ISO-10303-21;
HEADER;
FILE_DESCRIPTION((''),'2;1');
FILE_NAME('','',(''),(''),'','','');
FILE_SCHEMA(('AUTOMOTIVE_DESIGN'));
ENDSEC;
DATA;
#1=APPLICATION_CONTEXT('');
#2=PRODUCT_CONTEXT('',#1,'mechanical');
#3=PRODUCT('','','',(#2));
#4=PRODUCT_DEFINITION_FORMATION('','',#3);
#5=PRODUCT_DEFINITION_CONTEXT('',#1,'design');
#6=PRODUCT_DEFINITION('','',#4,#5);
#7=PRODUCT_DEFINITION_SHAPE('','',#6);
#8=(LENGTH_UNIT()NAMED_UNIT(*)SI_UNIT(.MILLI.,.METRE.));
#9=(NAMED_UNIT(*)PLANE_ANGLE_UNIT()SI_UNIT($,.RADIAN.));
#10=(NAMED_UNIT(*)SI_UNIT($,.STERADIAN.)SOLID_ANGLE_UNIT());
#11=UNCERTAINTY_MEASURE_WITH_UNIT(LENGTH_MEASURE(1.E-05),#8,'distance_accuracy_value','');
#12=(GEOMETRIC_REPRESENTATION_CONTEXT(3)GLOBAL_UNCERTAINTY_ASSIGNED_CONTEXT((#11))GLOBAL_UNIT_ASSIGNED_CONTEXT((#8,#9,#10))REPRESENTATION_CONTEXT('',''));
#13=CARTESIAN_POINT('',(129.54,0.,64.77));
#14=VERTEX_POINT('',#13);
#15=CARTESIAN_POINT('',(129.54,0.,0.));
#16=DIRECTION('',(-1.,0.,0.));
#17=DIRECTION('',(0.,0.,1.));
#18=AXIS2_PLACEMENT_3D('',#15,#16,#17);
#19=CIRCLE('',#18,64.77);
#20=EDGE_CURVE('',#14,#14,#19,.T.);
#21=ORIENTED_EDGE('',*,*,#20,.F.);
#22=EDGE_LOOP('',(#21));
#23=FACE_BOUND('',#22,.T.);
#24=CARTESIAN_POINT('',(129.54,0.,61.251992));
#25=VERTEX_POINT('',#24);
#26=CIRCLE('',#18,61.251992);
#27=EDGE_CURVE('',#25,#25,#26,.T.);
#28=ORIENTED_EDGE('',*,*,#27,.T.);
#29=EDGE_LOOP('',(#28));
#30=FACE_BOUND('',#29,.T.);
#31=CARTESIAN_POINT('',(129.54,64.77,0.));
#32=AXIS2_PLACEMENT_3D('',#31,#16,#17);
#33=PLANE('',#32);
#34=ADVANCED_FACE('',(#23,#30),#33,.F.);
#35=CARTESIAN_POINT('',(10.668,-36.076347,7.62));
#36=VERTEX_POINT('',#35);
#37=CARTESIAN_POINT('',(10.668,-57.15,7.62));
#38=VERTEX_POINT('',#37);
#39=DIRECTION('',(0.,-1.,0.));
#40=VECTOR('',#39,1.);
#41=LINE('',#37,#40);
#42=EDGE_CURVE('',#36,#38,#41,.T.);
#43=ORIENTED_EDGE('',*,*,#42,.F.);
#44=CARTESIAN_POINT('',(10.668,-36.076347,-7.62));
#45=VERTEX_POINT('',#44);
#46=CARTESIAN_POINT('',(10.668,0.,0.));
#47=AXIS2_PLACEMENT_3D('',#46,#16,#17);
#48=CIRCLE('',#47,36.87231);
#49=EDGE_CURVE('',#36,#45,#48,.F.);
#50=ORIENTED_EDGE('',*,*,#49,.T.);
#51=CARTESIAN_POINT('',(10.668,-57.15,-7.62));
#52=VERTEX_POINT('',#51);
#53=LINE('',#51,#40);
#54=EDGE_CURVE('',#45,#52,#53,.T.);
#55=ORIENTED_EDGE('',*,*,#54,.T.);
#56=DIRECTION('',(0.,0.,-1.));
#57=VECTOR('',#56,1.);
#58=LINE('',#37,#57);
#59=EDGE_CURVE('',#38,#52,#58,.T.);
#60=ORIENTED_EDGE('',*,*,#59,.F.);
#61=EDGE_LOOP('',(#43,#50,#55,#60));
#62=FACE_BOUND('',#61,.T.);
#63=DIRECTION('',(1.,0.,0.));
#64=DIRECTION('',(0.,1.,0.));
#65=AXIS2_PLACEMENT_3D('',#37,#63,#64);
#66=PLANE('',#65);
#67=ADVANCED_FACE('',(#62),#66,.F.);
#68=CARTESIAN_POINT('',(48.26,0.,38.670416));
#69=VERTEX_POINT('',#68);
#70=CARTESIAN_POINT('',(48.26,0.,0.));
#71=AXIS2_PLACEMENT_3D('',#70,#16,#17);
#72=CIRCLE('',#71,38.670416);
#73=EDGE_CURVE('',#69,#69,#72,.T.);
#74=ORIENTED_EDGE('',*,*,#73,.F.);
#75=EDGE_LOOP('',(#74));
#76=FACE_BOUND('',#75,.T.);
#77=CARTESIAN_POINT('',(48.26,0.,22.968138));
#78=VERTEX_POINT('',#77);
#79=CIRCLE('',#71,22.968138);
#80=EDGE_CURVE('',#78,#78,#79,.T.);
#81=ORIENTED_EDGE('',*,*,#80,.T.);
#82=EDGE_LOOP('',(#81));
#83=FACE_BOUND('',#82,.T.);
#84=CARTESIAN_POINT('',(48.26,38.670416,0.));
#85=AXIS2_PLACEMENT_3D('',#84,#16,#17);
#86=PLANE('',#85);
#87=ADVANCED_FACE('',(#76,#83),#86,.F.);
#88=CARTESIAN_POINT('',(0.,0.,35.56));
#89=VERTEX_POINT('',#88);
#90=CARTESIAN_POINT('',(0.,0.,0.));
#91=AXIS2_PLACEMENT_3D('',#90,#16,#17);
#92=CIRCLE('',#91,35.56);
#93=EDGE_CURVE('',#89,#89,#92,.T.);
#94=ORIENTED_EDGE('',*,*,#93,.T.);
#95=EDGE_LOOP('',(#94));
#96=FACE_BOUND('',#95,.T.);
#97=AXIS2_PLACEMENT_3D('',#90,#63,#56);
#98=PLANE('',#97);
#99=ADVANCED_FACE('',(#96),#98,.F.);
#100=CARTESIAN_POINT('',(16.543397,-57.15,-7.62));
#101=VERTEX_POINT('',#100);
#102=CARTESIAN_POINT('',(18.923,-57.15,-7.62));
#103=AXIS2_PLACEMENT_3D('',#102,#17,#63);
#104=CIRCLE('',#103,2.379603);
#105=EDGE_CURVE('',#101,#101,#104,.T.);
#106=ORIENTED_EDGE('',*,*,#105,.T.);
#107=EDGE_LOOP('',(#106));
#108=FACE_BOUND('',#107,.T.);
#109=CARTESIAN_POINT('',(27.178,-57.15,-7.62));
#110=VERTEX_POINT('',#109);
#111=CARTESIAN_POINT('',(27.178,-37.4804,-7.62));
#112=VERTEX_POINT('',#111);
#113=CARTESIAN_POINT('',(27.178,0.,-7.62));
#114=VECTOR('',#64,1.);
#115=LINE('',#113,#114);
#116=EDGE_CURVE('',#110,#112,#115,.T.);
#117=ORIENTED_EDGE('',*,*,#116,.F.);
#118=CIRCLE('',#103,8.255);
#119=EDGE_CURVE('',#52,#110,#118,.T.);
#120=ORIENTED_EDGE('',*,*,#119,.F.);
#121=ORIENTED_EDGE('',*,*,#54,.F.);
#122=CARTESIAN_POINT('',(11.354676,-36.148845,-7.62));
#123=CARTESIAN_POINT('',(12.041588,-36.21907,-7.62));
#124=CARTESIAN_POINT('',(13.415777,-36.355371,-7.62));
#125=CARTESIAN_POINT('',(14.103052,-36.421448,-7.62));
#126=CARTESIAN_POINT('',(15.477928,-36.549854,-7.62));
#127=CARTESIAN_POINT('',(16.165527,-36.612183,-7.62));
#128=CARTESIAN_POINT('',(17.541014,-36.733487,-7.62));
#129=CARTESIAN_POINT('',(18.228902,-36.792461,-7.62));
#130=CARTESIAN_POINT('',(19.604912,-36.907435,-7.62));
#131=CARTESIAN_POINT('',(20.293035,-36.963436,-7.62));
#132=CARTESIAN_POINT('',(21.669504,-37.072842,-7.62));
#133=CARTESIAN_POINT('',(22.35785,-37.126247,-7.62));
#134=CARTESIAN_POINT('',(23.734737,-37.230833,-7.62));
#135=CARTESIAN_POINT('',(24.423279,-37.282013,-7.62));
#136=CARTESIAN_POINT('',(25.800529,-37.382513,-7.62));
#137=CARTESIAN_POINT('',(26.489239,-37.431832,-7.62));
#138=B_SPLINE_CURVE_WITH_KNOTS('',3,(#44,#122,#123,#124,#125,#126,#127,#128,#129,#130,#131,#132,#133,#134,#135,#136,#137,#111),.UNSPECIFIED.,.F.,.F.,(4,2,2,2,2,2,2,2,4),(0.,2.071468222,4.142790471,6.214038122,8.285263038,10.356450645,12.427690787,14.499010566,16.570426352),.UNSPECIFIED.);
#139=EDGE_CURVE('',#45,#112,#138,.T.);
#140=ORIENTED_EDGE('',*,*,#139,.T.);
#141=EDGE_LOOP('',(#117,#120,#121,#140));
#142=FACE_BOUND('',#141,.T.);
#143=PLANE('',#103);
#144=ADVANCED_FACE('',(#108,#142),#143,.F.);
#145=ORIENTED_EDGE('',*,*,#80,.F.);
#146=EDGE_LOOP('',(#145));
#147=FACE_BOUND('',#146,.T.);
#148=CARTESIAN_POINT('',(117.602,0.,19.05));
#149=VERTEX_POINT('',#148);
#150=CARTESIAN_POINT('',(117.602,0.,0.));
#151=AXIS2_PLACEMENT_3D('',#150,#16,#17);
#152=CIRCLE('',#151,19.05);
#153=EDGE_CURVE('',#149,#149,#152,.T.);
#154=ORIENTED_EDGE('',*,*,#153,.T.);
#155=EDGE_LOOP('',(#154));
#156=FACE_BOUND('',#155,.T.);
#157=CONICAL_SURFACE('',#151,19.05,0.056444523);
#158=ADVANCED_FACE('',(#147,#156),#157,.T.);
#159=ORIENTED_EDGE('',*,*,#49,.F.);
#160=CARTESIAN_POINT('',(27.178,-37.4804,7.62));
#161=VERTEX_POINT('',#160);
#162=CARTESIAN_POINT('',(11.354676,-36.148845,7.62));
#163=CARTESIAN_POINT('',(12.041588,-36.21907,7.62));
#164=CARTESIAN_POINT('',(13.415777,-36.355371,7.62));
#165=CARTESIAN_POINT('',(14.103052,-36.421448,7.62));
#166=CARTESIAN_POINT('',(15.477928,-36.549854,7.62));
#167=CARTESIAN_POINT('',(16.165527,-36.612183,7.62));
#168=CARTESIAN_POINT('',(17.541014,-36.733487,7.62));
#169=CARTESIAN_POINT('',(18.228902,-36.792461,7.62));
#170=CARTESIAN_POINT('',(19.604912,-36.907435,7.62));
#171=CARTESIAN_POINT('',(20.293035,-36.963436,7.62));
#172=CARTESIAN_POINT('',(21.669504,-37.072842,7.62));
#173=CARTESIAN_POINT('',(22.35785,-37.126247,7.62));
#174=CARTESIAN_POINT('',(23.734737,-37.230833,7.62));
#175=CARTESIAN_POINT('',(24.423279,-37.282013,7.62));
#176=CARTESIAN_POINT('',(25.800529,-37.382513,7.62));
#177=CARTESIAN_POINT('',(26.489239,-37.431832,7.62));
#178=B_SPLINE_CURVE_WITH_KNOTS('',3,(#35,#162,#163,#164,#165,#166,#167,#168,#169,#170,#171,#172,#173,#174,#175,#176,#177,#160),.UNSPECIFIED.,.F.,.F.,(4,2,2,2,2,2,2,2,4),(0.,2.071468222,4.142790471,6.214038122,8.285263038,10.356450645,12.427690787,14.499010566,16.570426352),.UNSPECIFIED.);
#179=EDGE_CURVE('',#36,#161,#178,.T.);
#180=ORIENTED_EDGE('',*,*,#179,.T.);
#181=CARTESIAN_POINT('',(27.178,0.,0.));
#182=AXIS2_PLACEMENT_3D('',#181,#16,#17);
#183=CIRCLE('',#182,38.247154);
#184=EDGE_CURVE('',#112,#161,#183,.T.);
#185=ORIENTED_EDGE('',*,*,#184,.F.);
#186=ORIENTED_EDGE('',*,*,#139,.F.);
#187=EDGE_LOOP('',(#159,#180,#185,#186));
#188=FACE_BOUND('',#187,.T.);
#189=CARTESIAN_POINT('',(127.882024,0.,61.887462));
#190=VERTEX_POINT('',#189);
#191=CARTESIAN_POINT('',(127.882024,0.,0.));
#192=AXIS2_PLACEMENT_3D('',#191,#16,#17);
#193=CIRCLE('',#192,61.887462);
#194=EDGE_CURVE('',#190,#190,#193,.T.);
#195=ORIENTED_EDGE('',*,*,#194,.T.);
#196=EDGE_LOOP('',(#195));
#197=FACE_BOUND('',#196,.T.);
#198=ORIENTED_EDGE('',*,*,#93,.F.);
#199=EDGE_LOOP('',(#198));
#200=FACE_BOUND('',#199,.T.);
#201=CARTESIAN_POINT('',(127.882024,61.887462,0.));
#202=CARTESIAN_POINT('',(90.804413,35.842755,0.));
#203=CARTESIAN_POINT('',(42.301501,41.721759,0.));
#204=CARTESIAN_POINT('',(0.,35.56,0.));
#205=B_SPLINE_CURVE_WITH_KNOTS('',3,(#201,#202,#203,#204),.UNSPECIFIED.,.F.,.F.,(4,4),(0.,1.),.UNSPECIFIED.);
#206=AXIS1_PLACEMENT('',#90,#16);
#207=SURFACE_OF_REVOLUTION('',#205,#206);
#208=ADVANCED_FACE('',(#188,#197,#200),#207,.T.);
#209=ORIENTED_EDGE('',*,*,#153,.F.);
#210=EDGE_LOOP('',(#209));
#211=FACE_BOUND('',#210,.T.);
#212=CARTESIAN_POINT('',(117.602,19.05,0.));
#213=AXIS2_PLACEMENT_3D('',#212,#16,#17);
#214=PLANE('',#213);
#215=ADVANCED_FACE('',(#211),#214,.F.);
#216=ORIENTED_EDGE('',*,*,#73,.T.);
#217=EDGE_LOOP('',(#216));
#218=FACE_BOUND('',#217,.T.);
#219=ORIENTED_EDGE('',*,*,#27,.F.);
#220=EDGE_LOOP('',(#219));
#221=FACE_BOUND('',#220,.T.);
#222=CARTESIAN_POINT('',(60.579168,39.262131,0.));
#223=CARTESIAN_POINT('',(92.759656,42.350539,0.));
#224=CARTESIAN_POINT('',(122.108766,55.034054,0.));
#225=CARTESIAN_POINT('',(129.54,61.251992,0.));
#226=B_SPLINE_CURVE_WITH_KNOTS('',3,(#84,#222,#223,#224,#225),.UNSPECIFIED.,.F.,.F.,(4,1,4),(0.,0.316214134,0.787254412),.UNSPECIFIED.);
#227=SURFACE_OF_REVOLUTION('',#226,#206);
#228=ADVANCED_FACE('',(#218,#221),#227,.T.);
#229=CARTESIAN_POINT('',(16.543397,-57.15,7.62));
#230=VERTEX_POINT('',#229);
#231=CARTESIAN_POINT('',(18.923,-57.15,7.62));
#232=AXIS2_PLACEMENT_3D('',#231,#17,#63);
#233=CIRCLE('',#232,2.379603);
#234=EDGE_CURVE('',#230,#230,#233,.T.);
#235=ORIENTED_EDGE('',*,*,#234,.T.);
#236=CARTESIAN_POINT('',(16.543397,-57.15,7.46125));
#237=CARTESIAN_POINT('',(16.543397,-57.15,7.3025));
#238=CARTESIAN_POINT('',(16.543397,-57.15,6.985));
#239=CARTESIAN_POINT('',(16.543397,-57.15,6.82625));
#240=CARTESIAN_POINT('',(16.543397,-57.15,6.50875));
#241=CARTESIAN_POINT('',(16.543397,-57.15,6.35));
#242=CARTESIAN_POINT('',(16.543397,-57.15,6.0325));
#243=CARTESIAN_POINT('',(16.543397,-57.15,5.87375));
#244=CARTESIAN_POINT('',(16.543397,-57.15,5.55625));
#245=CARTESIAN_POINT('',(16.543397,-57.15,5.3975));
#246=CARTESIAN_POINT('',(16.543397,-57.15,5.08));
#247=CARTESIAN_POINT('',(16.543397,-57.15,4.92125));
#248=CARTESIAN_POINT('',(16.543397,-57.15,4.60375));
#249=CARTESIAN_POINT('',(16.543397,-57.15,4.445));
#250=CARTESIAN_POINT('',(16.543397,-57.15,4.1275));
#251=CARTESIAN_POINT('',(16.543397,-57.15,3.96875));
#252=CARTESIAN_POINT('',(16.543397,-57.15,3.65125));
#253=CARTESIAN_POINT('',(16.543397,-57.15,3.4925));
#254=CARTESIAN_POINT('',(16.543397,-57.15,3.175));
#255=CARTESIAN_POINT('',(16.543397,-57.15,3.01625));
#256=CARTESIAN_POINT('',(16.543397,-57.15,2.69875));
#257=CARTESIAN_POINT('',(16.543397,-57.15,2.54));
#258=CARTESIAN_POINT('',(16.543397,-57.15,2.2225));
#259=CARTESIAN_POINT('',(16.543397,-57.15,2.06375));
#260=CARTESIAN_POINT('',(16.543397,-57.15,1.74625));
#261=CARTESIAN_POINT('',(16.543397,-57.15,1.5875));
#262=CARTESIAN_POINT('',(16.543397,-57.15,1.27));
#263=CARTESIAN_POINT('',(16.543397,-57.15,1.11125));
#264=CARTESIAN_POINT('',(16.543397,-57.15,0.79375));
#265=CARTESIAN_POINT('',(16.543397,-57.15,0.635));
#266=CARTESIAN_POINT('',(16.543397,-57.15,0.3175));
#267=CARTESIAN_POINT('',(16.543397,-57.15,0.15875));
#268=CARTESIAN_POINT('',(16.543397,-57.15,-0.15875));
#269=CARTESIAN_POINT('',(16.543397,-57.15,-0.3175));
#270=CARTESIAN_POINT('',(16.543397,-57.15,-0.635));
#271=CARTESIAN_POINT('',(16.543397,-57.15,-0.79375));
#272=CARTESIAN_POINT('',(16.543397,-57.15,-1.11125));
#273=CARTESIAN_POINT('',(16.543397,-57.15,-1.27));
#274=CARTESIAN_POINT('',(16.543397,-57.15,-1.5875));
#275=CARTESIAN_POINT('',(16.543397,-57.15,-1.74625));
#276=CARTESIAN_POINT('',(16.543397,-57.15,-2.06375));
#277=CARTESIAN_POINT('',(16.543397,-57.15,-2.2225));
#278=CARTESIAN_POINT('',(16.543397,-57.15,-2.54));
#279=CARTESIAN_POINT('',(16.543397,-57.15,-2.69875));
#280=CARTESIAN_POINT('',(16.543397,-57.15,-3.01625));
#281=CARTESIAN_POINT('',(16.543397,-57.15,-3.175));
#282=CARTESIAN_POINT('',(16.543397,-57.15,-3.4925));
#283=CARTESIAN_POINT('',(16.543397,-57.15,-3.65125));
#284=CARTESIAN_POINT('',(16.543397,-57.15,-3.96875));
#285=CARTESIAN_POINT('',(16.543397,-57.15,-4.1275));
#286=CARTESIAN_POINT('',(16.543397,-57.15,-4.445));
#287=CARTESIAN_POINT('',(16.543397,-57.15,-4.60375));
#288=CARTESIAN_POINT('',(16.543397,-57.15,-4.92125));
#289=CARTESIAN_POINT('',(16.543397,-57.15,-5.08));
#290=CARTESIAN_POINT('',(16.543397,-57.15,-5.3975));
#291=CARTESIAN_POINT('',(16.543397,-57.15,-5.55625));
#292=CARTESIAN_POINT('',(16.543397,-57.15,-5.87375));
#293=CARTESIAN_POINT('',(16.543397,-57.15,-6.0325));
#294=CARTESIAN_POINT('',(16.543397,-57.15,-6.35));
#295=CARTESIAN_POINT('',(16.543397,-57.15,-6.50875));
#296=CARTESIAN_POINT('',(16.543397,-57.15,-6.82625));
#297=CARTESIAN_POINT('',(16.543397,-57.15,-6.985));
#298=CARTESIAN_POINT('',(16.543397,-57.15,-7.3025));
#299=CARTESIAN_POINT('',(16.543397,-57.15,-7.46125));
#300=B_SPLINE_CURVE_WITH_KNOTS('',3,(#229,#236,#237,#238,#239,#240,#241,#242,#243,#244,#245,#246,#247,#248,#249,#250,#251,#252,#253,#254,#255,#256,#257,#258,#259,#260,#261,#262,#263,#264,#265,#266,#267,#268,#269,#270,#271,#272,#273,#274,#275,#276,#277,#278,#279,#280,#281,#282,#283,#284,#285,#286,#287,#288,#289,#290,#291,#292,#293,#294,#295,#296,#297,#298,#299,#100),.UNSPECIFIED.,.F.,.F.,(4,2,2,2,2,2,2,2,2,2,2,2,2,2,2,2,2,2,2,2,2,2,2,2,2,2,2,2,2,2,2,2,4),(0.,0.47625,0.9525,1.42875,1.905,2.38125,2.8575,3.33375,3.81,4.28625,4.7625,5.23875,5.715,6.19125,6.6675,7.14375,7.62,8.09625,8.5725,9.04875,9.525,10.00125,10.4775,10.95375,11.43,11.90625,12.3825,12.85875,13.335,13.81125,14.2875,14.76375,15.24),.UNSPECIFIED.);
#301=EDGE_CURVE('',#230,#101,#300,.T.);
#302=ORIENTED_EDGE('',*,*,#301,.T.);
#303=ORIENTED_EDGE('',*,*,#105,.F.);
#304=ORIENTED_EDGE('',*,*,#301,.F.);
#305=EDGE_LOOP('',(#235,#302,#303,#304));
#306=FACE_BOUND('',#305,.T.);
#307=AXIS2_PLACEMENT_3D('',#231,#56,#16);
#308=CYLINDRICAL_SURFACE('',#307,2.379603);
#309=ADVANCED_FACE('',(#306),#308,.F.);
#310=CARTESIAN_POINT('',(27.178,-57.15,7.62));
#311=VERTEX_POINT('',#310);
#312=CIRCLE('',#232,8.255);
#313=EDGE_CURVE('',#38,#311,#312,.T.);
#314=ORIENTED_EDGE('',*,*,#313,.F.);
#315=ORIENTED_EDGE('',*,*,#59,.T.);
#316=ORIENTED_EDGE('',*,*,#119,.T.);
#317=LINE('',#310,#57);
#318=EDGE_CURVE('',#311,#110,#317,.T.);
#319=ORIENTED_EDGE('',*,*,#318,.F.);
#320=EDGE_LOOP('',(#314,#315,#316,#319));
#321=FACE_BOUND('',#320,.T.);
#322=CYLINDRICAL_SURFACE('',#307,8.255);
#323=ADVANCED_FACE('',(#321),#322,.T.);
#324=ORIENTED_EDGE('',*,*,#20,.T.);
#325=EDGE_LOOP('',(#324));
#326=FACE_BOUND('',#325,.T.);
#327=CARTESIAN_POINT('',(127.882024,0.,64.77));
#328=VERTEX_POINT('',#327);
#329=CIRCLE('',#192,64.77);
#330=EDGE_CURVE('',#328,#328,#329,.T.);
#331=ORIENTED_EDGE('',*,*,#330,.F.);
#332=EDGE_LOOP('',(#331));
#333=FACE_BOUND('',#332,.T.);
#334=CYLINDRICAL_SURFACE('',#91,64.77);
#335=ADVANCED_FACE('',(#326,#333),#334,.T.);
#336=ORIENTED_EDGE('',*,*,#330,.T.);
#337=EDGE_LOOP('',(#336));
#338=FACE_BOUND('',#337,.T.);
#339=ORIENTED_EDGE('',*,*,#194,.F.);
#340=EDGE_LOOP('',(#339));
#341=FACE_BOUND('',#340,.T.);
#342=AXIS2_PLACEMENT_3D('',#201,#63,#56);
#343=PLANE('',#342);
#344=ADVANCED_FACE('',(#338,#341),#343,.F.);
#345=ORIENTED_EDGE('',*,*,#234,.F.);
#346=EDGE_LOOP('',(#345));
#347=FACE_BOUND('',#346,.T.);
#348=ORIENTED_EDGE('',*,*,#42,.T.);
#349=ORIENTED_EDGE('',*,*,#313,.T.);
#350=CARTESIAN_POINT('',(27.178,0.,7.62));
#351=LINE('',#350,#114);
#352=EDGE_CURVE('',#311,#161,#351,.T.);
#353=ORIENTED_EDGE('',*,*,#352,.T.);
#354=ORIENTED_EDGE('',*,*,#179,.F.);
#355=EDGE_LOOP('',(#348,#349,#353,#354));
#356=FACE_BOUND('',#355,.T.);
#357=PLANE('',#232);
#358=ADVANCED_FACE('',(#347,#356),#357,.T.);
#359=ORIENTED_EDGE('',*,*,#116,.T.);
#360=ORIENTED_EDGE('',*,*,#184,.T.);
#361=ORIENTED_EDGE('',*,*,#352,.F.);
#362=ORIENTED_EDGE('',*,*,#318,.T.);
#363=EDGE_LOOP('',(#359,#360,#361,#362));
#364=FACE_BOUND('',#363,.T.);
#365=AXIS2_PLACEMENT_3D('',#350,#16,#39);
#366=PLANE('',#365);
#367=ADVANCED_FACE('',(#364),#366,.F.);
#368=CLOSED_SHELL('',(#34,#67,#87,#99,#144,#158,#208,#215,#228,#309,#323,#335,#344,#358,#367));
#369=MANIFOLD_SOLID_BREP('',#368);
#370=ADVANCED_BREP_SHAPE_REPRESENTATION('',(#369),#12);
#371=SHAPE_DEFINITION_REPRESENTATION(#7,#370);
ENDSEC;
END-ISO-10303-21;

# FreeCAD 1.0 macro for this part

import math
import FreeCAD as App
import Part
import Sketcher
from FreeCAD import Vector
Q = App.Units.Quantity

doc = App.newDocument("Part")
params = doc.addObject("Spreadsheet::Sheet", "Params")
for row, (alias, value) in enumerate([
    ("sketch1_width", "4.63 in"),
    ("sketch1_height", "0.75 in"),
    ("revolution_angle", "360 deg"),
    ("sketch2_radius", "0.325 in"),
    ("sketch2_height", "2.25 in"),
    ("pad1_length", "0.6 in"),
], start=1):
    params.set(f"A{row}", alias)
    params.set(f"B{row}", "=" + value)
    params.setAlias(f"B{row}", alias)

body = doc.addObject("PartDesign::Body", "Body")

# Sketch on XY plane
sketch1 = body.newObject("Sketcher::SketchObject", "Sketch")
sketch1.AttachmentSupport = (doc.getObject("XY_Plane"), [""])
sketch1.MapMode = "FlatFace"
sketch1.addGeometry(Part.LineSegment(Vector(0, 35.56, 0), Vector(0, 0, 0)), False)
sketch1.addGeometry(Part.LineSegment(Vector(0, 0, 0), Vector(117.602, 0, 0)), False)
sketch1.addGeometry(Part.LineSegment(Vector(117.602, 0, 0), Vector(117.602, 19.05, 0)), False)
sketch1.addGeometry(Part.LineSegment(Vector(117.602, 19.05, 0), Vector(48.26, 22.968138, 0)), False)
sketch1.addGeometry(Part.LineSegment(Vector(48.26, 22.968138, 0), Vector(48.26, 38.670416, 0)), False)
sketch1.addGeometry(Part.BSplineCurve([Vector(129.54, 61.251992, 0), Vector(122.108766, 55.034054, 0), Vector(92.759656, 42.350539, 0), Vector(60.579168, 39.262131, 0), Vector(48.26, 38.670416, 0)], [4, 1, 4], [0, 0.471040278, 0.787254412], False, 3, [1, 1, 1, 1, 1], False), False)
sketch1.addGeometry(Part.LineSegment(Vector(129.54, 61.251992, 0), Vector(129.54, 64.77, 0)), False)
sketch1.addGeometry(Part.LineSegment(Vector(129.54, 64.77, 0), Vector(127.882024, 64.77, 0)), False)
sketch1.addGeometry(Part.LineSegment(Vector(127.882024, 64.77, 0), Vector(127.882024, 61.887462, 0)), False)
sketch1.addGeometry(Part.BSplineCurve([Vector(0, 35.56, 0), Vector(42.301501, 41.721759, 0), Vector(90.804413, 35.842755, 0), Vector(127.882024, 61.887462, 0)], [4, 4], [0, 1], False, 3, [1, 1, 1, 1], False), False)
sketch1.addConstraint(Sketcher.Constraint("Block", 5))
sketch1.addConstraint(Sketcher.Constraint("Block", 9))
sketch1.addConstraint(Sketcher.Constraint("Coincident", 0, 2, 1, 1))
sketch1.addConstraint(Sketcher.Constraint("Coincident", 1, 2, 2, 1))
sketch1.addConstraint(Sketcher.Constraint("Coincident", 2, 2, 3, 1))
sketch1.addConstraint(Sketcher.Constraint("Coincident", 3, 2, 4, 1))
sketch1.addConstraint(Sketcher.Constraint("Coincident", 4, 2, 5, 2))
sketch1.addConstraint(Sketcher.Constraint("Coincident", 5, 1, 6, 1))
sketch1.addConstraint(Sketcher.Constraint("Coincident", 6, 2, 7, 1))
sketch1.addConstraint(Sketcher.Constraint("Coincident", 7, 2, 8, 1))
sketch1.addConstraint(Sketcher.Constraint("Coincident", 8, 2, 9, 2))
sketch1.addConstraint(Sketcher.Constraint("Coincident", 9, 1, 0, 1))
sketch1.addConstraint(Sketcher.Constraint("Vertical", 0))
sketch1.addConstraint(Sketcher.Constraint("Horizontal", 1))
sketch1.addConstraint(Sketcher.Constraint("Vertical", 2))
sketch1.addConstraint(Sketcher.Constraint("Vertical", 4))
sketch1.addConstraint(Sketcher.Constraint("Vertical", 6))
sketch1.addConstraint(Sketcher.Constraint("Horizontal", 7))
sketch1.addConstraint(Sketcher.Constraint("Vertical", 8))
sketch1.addConstraint(Sketcher.Constraint("PointOnObject", 1, 2, -1))
sketch1.addConstraint(Sketcher.Constraint("DistanceX", 1, 1, 1, 2, Q("4.63 in")))
sketch1.addConstraint(Sketcher.Constraint("DistanceY", 2, 1, 2, 2, Q("0.75 in")))
sketch1.addConstraint(Sketcher.Constraint("DistanceY", 2, 2, 6, 2, Q("1.8 in")))
sketch1.addConstraint(Sketcher.Constraint("DistanceY", 4, 1, 4, 2, Q("0.6181999 in")))
sketch1.setExpression("Constraints[20]", "Params.sketch1_width")
sketch1.setExpression("Constraints[21]", "Params.sketch1_height")
revolution = body.newObject("PartDesign::Revolution", "Revolution")
revolution.Profile = sketch1
revolution.ReferenceAxis = (sketch1, ["H_Axis"])
revolution.setExpression("Angle", "Params.revolution_angle")

# Sketch on XY plane
sketch2 = body.newObject("Sketcher::SketchObject", "Sketch001")
sketch2.AttachmentSupport = (doc.getObject("XY_Plane"), [""])
sketch2.MapMode = "FlatFace"
sketch2.addGeometry(Part.LineSegment(Vector(10.7, 0, 0), Vector(10.7, -57.1, 0)), False)
sketch2.addGeometry(Part.ArcOfCircle(Part.Circle(Vector(18.9, -57.1, 0), Vector(0, 0, 1), 8.3), math.radians(180), math.radians(360)), False)
sketch2.addGeometry(Part.LineSegment(Vector(27.2, -57.1, 0), Vector(27.2, 0, 0)), False)
sketch2.addGeometry(Part.LineSegment(Vector(27.2, 0, 0), Vector(10.7, 0, 0)), False)
sketch2.addGeometry(Part.Circle(Vector(18.9, -57.1, 0), Vector(0, 0, 1), 2.4), False)
sketch2.addConstraint(Sketcher.Constraint("Tangent", 0, 2, 1, 1))
sketch2.addConstraint(Sketcher.Constraint("Tangent", 1, 2, 2, 1))
sketch2.addConstraint(Sketcher.Constraint("Coincident", 2, 2, 3, 1))
sketch2.addConstraint(Sketcher.Constraint("Coincident", 3, 2, 0, 1))
sketch2.addConstraint(Sketcher.Constraint("Vertical", 0))
sketch2.addConstraint(Sketcher.Constraint("Vertical", 2))
sketch2.addConstraint(Sketcher.Constraint("Horizontal", 3))
sketch2.addConstraint(Sketcher.Constraint("Coincident", 4, 3, 1, 3))
sketch2.addConstraint(Sketcher.Constraint("PointOnObject", 2, 2, -1))
sketch2.addConstraint(Sketcher.Constraint("Radius", 1, Q("0.325 in")))
sketch2.addConstraint(Sketcher.Constraint("DistanceY", 0, 2, 0, 1, Q("2.25 in")))
sketch2.addConstraint(Sketcher.Constraint("DistanceX", -1, 1, 0, 2, Q("0.42 in")))
sketch2.addConstraint(Sketcher.Constraint("Diameter", 4, Q("4.759206 mm")))
sketch2.setExpression("Constraints[9]", "Params.sketch2_radius")
sketch2.setExpression("Constraints[10]", "Params.sketch2_height")
pad1 = body.newObject("PartDesign::Pad", "Pad")
pad1.Profile = sketch2
pad1.setExpression("Length", "Params.pad1_length")
pad1.Midplane = True

doc.recompute()
